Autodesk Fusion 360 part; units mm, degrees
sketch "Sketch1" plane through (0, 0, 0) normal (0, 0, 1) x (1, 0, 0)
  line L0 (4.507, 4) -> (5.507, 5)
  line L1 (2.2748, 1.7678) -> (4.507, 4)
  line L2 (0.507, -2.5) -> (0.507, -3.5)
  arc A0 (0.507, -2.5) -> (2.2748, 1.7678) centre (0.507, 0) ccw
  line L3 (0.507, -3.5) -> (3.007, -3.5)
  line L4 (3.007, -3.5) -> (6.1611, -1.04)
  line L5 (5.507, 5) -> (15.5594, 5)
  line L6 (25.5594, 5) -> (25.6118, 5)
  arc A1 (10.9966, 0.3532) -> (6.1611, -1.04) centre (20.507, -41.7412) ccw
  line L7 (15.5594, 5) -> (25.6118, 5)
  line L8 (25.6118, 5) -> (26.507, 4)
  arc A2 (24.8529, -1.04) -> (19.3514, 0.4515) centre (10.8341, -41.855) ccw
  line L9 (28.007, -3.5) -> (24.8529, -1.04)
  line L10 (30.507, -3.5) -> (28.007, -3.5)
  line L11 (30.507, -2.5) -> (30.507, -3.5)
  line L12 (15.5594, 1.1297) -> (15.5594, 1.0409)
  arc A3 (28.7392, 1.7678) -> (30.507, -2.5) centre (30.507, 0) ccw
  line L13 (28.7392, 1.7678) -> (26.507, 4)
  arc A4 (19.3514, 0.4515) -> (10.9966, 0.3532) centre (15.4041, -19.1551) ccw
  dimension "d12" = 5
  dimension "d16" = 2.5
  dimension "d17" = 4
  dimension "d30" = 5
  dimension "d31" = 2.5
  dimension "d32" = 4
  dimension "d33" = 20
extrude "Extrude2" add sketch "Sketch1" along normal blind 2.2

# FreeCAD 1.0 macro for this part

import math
import FreeCAD as App
import Part
import Sketcher
Q = App.Units.Quantity

doc = App.newDocument("Part")
body = doc.addObject("PartDesign::Body", "Body")

sketch1 = body.newObject("Sketcher::SketchObject", "Sketch")
sketch1.AttachmentSupport = (doc.getObject("XY_Plane"), [""])
sketch1.MapMode = "FlatFace"
sketch1.addGeometry([
    Part.LineSegment(App.Vector(5.5, 5, 0), App.Vector(2.3, 1.8, 0)),
    Part.ArcOfCircle(Part.Circle(App.Vector(0.5, 0, 0), App.Vector(0, 0, 1), 2.5), math.radians(-90), math.radians(45)),
    Part.LineSegment(App.Vector(0.5, -2.5, 0), App.Vector(0.5, -3.5, 0)),
    Part.LineSegment(App.Vector(0.5, -3.5, 0), App.Vector(3, -3.5, 0)),
    Part.LineSegment(App.Vector(3, -3.5, 0), App.Vector(6.2, -1, 0)),
    Part.ArcOfCircle(Part.Circle(App.Vector(20.5, -41.8, 0), App.Vector(0, 0, 1), 43.2), math.radians(102.73), math.radians(109.41)),
    Part.ArcOfCircle(Part.Circle(App.Vector(15.4, -19.2, 0), App.Vector(0, 0, 1), 20), math.radians(79), math.radians(103)),
    Part.ArcOfCircle(Part.Circle(App.Vector(10.8, -41.8, 0), App.Vector(0, 0, 1), 43.1), math.radians(71.04), math.radians(78.62)),
    Part.LineSegment(App.Vector(24.9, -1, 0), App.Vector(28, -3.5, 0)),
    Part.LineSegment(App.Vector(28, -3.5, 0), App.Vector(30.5, -3.5, 0)),
    Part.LineSegment(App.Vector(30.5, -3.5, 0), App.Vector(30.5, -2.5, 0)),
    Part.ArcOfCircle(Part.Circle(App.Vector(30.5, 0, 0), App.Vector(0, 0, 1), 2.5), math.radians(135), math.radians(270)),
    Part.LineSegment(App.Vector(28.7, 1.8, 0), App.Vector(26.5, 4, 0)),
    Part.LineSegment(App.Vector(26.5, 4, 0), App.Vector(25.6, 5, 0)),
    Part.LineSegment(App.Vector(25.6, 5, 0), App.Vector(5.5, 5, 0)),
], False)
sketch1.addConstraint([
    Sketcher.Constraint("Coincident", 0, 2, 1, 2),
    Sketcher.Constraint("Coincident", 1, 1, 2, 1),
    Sketcher.Constraint("Coincident", 2, 2, 3, 1),
    Sketcher.Constraint("Coincident", 3, 2, 4, 1),
    Sketcher.Constraint("Coincident", 4, 2, 5, 2),
    Sketcher.Constraint("Tangent", 5, 1, 6, 2),
    Sketcher.Constraint("Tangent", 6, 1, 7, 2),
    Sketcher.Constraint("Coincident", 7, 1, 8, 1),
    Sketcher.Constraint("Coincident", 8, 2, 9, 1),
    Sketcher.Constraint("Coincident", 9, 2, 10, 1),
    Sketcher.Constraint("Coincident", 10, 2, 11, 2),
    Sketcher.Constraint("Coincident", 11, 1, 12, 1),
    Sketcher.Constraint("Coincident", 12, 2, 13, 1),
    Sketcher.Constraint("Coincident", 13, 2, 14, 1),
    Sketcher.Constraint("Coincident", 14, 2, 0, 1),
    Sketcher.Constraint("Vertical", 2),
    Sketcher.Constraint("Horizontal", 3),
    Sketcher.Constraint("Horizontal", 9),
    Sketcher.Constraint("Vertical", 10),
    Sketcher.Constraint("Horizontal", 14),
    Sketcher.Constraint("Equal", 1, 11),
    Sketcher.Constraint("PointOnObject", 1, 3, -1),
    Sketcher.Constraint("PointOnObject", 11, 3, -1),
    Sketcher.Constraint("Perpendicular", 0, 12),
    Sketcher.Constraint("Horizontal", 4, 2, 7, 1),
    Sketcher.Constraint("Horizontal", 3, 2, 8, 2),
    Sketcher.Constraint("Horizontal", 0, 2, 11, 1),
    Sketcher.Constraint("Vertical", 11, 3, 9, 2),
    Sketcher.Constraint("Equal", 3, 9),
    Sketcher.Constraint("Equal", 4, 8),
    Sketcher.Constraint("Radius", 6, Q("20 mm")),
    Sketcher.Constraint("Radius", 1, Q("2.5 mm")),
    Sketcher.Constraint("Distance", 4, Q("4 mm")),
    Sketcher.Constraint("DistanceX", 3, 1, 3, 2, Q("2.5 mm")),
    Sketcher.Constraint("DistanceY", -1, 1, 12, 2, Q("4 mm")),
    Sketcher.Constraint("DistanceY", -1, 1, 13, 2, Q("5 mm")),
    Sketcher.Constraint("DistanceX", 12, 2, 11, 3, Q("4 mm")),
    Sketcher.Constraint("DistanceX", 1, 3, 14, 2, Q("5 mm")),
    Sketcher.Constraint("DistanceX", 1, 3, 3, 2, Q("2.5 mm")),
    Sketcher.Constraint("DistanceY", 2, 2, 2, 1, Q("1 mm")),
    Sketcher.Constraint("DistanceX", 1, 3, 11, 3, Q("30 mm")),
    Sketcher.Constraint("Radius", 5, Q("43.1769 mm")),
    Sketcher.Constraint("Radius", 7, Q("43.1378 mm")),
    Sketcher.Constraint("DistanceY", 4, 2, -1, 1, Q("1.04 mm")),
    Sketcher.Constraint("DistanceX", 14, 2, 14, 1, Q("20.1048 mm")),
    Sketcher.Constraint("DistanceX", -1, 1, 1, 3, Q("0.507 mm")),
    Sketcher.Constraint("DistanceY", 5, 3, -1, 1, Q("41.762 mm")),
    Sketcher.Constraint("DistanceX", -1, 1, 6, 3, Q("15.404 mm")),
])
pad1 = body.newObject("PartDesign::Pad", "Pad")
pad1.Profile = sketch1
pad1.Length = 2.2

doc.recompute()
